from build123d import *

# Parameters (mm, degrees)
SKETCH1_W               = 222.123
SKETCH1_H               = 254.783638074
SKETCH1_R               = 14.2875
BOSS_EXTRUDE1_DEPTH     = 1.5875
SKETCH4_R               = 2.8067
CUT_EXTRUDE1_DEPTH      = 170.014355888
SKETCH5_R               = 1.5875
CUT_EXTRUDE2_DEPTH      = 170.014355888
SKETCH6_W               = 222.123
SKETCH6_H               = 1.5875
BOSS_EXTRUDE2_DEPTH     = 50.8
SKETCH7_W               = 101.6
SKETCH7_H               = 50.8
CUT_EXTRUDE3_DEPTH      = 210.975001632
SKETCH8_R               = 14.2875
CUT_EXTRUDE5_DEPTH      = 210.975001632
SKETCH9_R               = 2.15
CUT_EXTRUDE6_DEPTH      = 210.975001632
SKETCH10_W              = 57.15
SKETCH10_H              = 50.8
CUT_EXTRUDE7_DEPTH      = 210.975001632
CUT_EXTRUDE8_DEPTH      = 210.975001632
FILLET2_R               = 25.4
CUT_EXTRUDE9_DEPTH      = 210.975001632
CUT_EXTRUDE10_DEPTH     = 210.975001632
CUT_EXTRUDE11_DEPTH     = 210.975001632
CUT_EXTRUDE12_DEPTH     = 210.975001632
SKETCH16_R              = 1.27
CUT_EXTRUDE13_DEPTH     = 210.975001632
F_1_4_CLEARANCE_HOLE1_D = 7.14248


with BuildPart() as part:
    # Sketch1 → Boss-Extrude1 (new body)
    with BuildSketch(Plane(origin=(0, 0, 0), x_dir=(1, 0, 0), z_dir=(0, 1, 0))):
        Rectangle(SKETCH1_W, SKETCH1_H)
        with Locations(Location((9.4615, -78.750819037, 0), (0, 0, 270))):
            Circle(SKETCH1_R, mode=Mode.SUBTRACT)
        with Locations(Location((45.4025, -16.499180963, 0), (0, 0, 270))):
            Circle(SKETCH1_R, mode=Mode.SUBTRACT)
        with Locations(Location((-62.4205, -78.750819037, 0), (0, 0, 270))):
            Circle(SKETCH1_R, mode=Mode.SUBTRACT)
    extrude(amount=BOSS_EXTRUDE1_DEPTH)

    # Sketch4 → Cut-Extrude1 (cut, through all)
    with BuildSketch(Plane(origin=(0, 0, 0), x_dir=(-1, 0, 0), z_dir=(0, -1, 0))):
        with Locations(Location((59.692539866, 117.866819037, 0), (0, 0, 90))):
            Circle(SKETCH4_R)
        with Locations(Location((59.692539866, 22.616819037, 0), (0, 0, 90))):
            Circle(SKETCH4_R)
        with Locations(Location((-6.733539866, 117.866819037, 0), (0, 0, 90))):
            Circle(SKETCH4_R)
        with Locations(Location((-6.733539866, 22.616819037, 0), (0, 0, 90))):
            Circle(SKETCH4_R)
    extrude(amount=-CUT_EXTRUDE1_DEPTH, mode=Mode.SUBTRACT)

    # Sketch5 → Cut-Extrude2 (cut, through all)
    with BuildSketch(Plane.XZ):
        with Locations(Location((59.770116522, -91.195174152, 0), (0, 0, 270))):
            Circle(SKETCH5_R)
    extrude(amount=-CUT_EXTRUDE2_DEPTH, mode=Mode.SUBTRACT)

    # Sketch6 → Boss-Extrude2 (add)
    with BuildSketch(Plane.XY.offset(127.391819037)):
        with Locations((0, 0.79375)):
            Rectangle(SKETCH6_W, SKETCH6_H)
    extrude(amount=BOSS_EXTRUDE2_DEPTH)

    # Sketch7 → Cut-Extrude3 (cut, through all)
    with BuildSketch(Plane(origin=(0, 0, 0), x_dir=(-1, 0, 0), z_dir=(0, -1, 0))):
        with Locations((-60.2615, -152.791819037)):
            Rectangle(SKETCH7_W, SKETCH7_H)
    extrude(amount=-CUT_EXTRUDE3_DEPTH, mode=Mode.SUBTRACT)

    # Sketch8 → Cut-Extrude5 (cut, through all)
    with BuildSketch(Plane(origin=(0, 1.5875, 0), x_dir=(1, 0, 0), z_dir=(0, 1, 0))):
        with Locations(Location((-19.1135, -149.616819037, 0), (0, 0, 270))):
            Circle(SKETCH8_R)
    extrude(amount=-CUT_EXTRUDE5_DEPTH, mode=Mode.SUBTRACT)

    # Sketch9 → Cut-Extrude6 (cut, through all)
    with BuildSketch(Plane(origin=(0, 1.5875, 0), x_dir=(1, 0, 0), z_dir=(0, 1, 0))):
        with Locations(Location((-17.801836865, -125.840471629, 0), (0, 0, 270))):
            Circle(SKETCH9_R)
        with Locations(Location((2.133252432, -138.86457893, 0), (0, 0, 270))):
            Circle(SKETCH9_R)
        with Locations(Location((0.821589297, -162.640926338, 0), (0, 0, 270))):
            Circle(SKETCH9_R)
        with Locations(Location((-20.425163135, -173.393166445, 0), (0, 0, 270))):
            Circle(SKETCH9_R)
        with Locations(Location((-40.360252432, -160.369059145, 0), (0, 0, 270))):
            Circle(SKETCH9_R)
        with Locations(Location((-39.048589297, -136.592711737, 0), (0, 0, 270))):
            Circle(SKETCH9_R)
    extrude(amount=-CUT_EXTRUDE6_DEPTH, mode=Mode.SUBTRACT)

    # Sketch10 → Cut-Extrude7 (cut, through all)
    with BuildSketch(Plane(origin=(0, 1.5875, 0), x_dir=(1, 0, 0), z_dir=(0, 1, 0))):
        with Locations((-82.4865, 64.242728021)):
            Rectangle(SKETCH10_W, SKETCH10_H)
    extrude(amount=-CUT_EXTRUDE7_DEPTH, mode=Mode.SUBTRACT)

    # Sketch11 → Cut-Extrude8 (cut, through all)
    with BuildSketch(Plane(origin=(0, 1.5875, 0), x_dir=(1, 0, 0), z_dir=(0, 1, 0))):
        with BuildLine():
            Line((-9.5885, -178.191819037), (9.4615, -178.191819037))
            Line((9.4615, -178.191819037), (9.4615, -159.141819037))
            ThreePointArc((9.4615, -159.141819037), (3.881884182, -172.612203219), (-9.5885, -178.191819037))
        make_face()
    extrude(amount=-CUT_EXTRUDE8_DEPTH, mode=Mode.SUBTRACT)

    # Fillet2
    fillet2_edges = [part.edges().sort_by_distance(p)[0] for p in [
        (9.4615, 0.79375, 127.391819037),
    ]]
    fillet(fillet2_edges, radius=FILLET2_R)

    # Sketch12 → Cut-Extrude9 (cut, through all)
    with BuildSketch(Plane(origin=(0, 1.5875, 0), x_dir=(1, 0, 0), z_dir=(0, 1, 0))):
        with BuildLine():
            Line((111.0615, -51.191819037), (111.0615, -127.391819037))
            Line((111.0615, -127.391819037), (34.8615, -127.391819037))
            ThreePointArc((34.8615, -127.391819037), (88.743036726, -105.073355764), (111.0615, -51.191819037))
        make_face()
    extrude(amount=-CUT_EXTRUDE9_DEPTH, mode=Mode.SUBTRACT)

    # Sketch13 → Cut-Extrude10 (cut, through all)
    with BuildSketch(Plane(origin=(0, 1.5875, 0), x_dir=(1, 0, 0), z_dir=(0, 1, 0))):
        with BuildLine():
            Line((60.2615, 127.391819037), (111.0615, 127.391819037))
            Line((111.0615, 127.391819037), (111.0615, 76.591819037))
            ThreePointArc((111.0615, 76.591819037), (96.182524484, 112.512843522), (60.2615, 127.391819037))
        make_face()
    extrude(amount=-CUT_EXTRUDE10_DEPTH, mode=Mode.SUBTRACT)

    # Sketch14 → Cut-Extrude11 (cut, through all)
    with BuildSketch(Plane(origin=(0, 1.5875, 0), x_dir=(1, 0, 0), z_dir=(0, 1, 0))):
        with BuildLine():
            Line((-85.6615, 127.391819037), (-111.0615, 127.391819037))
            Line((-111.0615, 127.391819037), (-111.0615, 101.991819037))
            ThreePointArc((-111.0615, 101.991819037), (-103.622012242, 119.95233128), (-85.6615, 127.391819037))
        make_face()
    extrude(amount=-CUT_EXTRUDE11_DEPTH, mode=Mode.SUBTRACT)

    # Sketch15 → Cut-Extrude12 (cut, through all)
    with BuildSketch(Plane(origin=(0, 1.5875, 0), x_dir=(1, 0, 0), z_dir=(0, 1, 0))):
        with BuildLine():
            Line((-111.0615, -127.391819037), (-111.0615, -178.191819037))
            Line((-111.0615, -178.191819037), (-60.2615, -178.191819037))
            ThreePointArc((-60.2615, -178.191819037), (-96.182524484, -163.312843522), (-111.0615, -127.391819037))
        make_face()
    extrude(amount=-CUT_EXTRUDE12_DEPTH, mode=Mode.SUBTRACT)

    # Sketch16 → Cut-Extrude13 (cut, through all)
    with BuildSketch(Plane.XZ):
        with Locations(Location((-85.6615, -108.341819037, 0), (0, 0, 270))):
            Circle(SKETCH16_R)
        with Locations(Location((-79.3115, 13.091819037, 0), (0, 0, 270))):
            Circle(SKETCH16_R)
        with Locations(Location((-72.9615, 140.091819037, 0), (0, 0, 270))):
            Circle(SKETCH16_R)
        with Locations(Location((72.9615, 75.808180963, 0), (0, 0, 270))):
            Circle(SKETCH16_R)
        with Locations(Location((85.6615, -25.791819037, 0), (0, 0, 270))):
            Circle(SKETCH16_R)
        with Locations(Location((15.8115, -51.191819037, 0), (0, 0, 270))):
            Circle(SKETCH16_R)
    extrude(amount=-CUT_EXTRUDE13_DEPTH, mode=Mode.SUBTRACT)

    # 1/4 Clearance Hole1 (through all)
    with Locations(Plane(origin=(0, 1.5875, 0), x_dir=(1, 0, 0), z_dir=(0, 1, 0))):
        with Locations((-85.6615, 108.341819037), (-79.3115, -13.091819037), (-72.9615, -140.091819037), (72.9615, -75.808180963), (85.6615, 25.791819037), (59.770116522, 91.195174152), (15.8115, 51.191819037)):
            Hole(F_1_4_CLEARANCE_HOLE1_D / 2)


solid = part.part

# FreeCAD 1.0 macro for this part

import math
import FreeCAD as App
import Part
import Sketcher
from FreeCAD import Vector
Q = App.Units.Quantity


def edges_at(feature, points):
    """Names of the edges that pass closest to the given points."""
    edges = feature.Shape.Edges
    near = lambda p: min(range(len(edges)), key=lambda i: edges[i].distToShape(Part.Vertex(*p))[0])
    return sorted({f"Edge{near(p) + 1}" for p in points})

doc = App.newDocument("Part")
body = doc.addObject("PartDesign::Body", "Body")

# Sketch on XZ plane
sketch1 = doc.addObject("Sketcher::SketchObject", "Sketch")
body.addObject(sketch1)
sketch1.AttachmentSupport = (doc.XZ_Plane, [""])
sketch1.MapMode = "FlatFace"
sketch1.addGeometry([
    Part.LineSegment(Vector(-111, -127, 0), Vector(-111, 127, 0)),  # 0
    Part.LineSegment(Vector(-111, 127, 0), Vector(111, 127, 0)),  # 1
    Part.LineSegment(Vector(111, 127, 0), Vector(111, -127, 0)),  # 2
    Part.LineSegment(Vector(111, -127, 0), Vector(-111, -127, 0)),  # 3
    Part.Circle(Vector(-62, 79, 0), Vector(0, 0, 1), 14),  # 4
    Part.Circle(Vector(9, 79, 0), Vector(0, 0, 1), 14),  # 5
    Part.Circle(Vector(45, 16, 0), Vector(0, 0, 1), 14),  # 6
], False)
sketch1.addConstraint([
    Sketcher.Constraint("Coincident", 0, 2, 1, 1),
    Sketcher.Constraint("Coincident", 1, 2, 2, 1),
    Sketcher.Constraint("Coincident", 2, 2, 3, 1),
    Sketcher.Constraint("Coincident", 3, 2, 0, 1),
    Sketcher.Constraint("Vertical", 0),
    Sketcher.Constraint("Horizontal", 1),
    Sketcher.Constraint("Vertical", 2),
    Sketcher.Constraint("Horizontal", 3),
    Sketcher.Constraint("Equal", 4, 5),
    Sketcher.Constraint("Equal", 5, 6),
    Sketcher.Constraint("Symmetric", 0, 2, 2, 2, -1, 1),
    Sketcher.Constraint("Horizontal", 4, 3, 5, 3),
    Sketcher.Constraint("Diameter", 4, Q("1.125 in")),
    Sketcher.Constraint("DistanceX", 5, 3, 1, 2, Q("4 in")),
    Sketcher.Constraint("DistanceX", 1, 1, 1, 2, Q("8.745 in")),
    Sketcher.Constraint("DistanceX", 4, 3, 5, 3, Q("2.83 in")),
    Sketcher.Constraint("DistanceX", 0, 2, 6, 3, Q("6.16 in")),
    Sketcher.Constraint("DistanceY", 4, 3, 0, 2, Q("1.915 in")),
    Sketcher.Constraint("DistanceY", 2, 2, 6, 3, Q("5.665 in")),
    Sketcher.Constraint("DistanceY", 0, 1, 0, 2, 254.783638),
])
pad1 = doc.addObject("PartDesign::Pad", "Pad")
body.addObject(pad1)
pad1.Profile = sketch1
pad1.Length = Q("0.0625 in")
pad1.Reversed = True

# Sketch on XZ plane
sketch2 = doc.addObject("Sketcher::SketchObject", "Sketch001")
body.addObject(sketch2)
sketch2.AttachmentSupport = (doc.XZ_Plane, [""])
sketch2.MapMode = "FlatFace"
sketch2.addGeometry([
    Part.Circle(Vector(-59.7, -117.9, 0), Vector(0, 0, 1), 2.8),
    Part.Circle(Vector(-59.7, -22.6, 0), Vector(0, 0, 1), 2.8),
    Part.Circle(Vector(6.7, -117.9, 0), Vector(0, 0, 1), 2.8),
    Part.Circle(Vector(6.7, -22.6, 0), Vector(0, 0, 1), 2.8),
], False)
sketch2.addConstraint([
    Sketcher.Constraint("Equal", 0, 1),
    Sketcher.Constraint("Equal", 1, 2),
    Sketcher.Constraint("Equal", 2, 3),
    Sketcher.Constraint("Horizontal", 0, 3, 2, 3),
    Sketcher.Constraint("Horizontal", 1, 3, 3, 3),
    Sketcher.Constraint("Vertical", 0, 3, 1, 3),
    Sketcher.Constraint("Vertical", 2, 3, 3, 3),
    Sketcher.Constraint("Diameter", 0, Q("0.221 in")),
    Sketcher.Constraint("DistanceY", 0, 3, 1, 3, Q("3.75 in")),
    Sketcher.Constraint("DistanceX", 0, 3, -1, 1, Q("2.3501 in")),
    Sketcher.Constraint("DistanceX", -1, 1, 2, 3, Q("0.2651 in")),
    Sketcher.Constraint("DistanceY", 0, 3, -1, 1, 117.866819),
])
pocket1 = doc.addObject("PartDesign::Pocket", "Pocket")
body.addObject(pocket1)
pocket1.Profile = sketch2
pocket1.Type = "ThroughAll"

# Sketch on XZ plane
sketch3 = doc.addObject("Sketcher::SketchObject", "Sketch002")
body.addObject(sketch3)
sketch3.AttachmentSupport = (doc.XZ_Plane, [""])
sketch3.MapMode = "FlatFace"
sketch3.addGeometry(Part.Circle(Vector(59.8, -91.2, 0), Vector(0, 0, 1), 1.6), False)
sketch3.addConstraint([
    Sketcher.Constraint("Diameter", 0, Q("0.125 in")),
    Sketcher.Constraint("DistanceX", -1, 1, 0, 3, 59.770117),
    Sketcher.Constraint("DistanceY", 0, 3, -1, 1, 91.195174),
])
pocket2 = doc.addObject("PartDesign::Pocket", "Pocket001")
body.addObject(pocket2)
pocket2.Profile = sketch3
pocket2.Type = "ThroughAll"

# Sketch on XY plane
sketch4 = doc.addObject("Sketcher::SketchObject", "Sketch003")
body.addObject(sketch4)
sketch4.AttachmentSupport = (doc.XY_Plane, [""])
sketch4.MapMode = "FlatFace"
sketch4.AttachmentOffset = App.Placement(Vector(0, 0, 127.391819), App.Rotation())
sketch4.addGeometry([
    Part.LineSegment(Vector(-111.1, 1.6, 0), Vector(-111.1, 0, 0)),
    Part.LineSegment(Vector(-111.1, 0, 0), Vector(111.1, 0, 0)),
    Part.LineSegment(Vector(111.1, 0, 0), Vector(111.1, 1.6, 0)),
    Part.LineSegment(Vector(111.1, 1.6, 0), Vector(-111.1, 1.6, 0)),
], False)
sketch4.addConstraint([
    Sketcher.Constraint("Coincident", 0, 2, 1, 1),
    Sketcher.Constraint("Coincident", 1, 2, 2, 1),
    Sketcher.Constraint("Coincident", 2, 2, 3, 1),
    Sketcher.Constraint("Coincident", 3, 2, 0, 1),
    Sketcher.Constraint("Vertical", 0),
    Sketcher.Constraint("Horizontal", 1),
    Sketcher.Constraint("Vertical", 2),
    Sketcher.Constraint("Horizontal", 3),
    Sketcher.Constraint("Symmetric", 0, 2, 1, 2, -1, 1),
    Sketcher.Constraint("DistanceX", 1, 1, 1, 2, Q("8.745 in")),
    Sketcher.Constraint("DistanceY", 0, 2, 0, 1, Q("0.0625 in")),
])
pad2 = doc.addObject("PartDesign::Pad", "Pad001")
body.addObject(pad2)
pad2.Profile = sketch4
pad2.Length = Q("2 in")

# Sketch on XZ plane
sketch5 = doc.addObject("Sketcher::SketchObject", "Sketch004")
body.addObject(sketch5)
sketch5.AttachmentSupport = (doc.XZ_Plane, [""])
sketch5.MapMode = "FlatFace"
sketch5.addGeometry([
    Part.LineSegment(Vector(111, 127, 0), Vector(111, 178, 0)),
    Part.LineSegment(Vector(111, 178, 0), Vector(9, 178, 0)),
    Part.LineSegment(Vector(9, 178, 0), Vector(9, 127, 0)),
    Part.LineSegment(Vector(9, 127, 0), Vector(111, 127, 0)),
], False)
sketch5.addConstraint([
    Sketcher.Constraint("Coincident", 0, 2, 1, 1),
    Sketcher.Constraint("Coincident", 1, 2, 2, 1),
    Sketcher.Constraint("Coincident", 2, 2, 3, 1),
    Sketcher.Constraint("Coincident", 3, 2, 0, 1),
    Sketcher.Constraint("Vertical", 0),
    Sketcher.Constraint("Horizontal", 1),
    Sketcher.Constraint("Vertical", 2),
    Sketcher.Constraint("Horizontal", 3),
    Sketcher.Constraint("DistanceX", 1, 2, 1, 1, Q("4 in")),
    Sketcher.Constraint("DistanceY", 0, 1, 0, 2, Q("2 in")),
    Sketcher.Constraint("DistanceX", -1, 1, 0, 2, Q("4.3725 in")),
    Sketcher.Constraint("DistanceY", -1, 1, 0, 2, 178.191819),
])
pocket3 = doc.addObject("PartDesign::Pocket", "Pocket002")
body.addObject(pocket3)
pocket3.Profile = sketch5
pocket3.Type = "ThroughAll"

# Sketch on XZ plane
sketch6 = doc.addObject("Sketcher::SketchObject", "Sketch005")
body.addObject(sketch6)
sketch6.AttachmentSupport = (doc.XZ_Plane, [""])
sketch6.MapMode = "FlatFace"
sketch6.AttachmentOffset = App.Placement(Vector(0, 0, -0.0625 * 25.4), App.Rotation())
sketch6.addGeometry(Part.Circle(Vector(-19, 150, 0), Vector(0, 0, 1), 14), False)
sketch6.addConstraint([
    Sketcher.Constraint("Diameter", 0, Q("1.125 in")),
    Sketcher.Constraint("DistanceX", 0, 3, -1, 1, Q("0.7525 in")),
    Sketcher.Constraint("DistanceY", -1, 1, 0, 3, 149.616819),
])
pocket4 = doc.addObject("PartDesign::Pocket", "Pocket003")
body.addObject(pocket4)
pocket4.Profile = sketch6
pocket4.Type = "ThroughAll"
pocket4.Reversed = True

# Sketch on XZ plane
sketch7 = doc.addObject("Sketcher::SketchObject", "Sketch006")
body.addObject(sketch7)
sketch7.AttachmentSupport = (doc.XZ_Plane, [""])
sketch7.MapMode = "FlatFace"
sketch7.AttachmentOffset = App.Placement(Vector(0, 0, -0.0625 * 25.4), App.Rotation())
sketch7.addGeometry([
    Part.Circle(Vector(-17.8, 125.8, 0), Vector(0, 0, 1), 2.1),  # 0
    Part.Circle(Vector(2.1, 138.9, 0), Vector(0, 0, 1), 2.1),  # 1
    Part.Circle(Vector(0.8, 162.6, 0), Vector(0, 0, 1), 2.1),  # 2
    Part.Circle(Vector(-20.4, 173.4, 0), Vector(0, 0, 1), 2.1),  # 3
    Part.Circle(Vector(-40.4, 160.4, 0), Vector(0, 0, 1), 2.1),  # 4
    Part.Circle(Vector(-39, 136.6, 0), Vector(0, 0, 1), 2.1),  # 5
], False)
sketch7.addConstraint([
    Sketcher.Constraint("Equal", 0, 1),
    Sketcher.Constraint("Equal", 1, 2),
    Sketcher.Constraint("Equal", 2, 3),
    Sketcher.Constraint("Equal", 3, 4),
    Sketcher.Constraint("Equal", 4, 5),
    Sketcher.Constraint("Diameter", 0, 4.3),
    Sketcher.Constraint("DistanceY", -1, 1, 0, 3, 125.840472),
    Sketcher.Constraint("DistanceY", -1, 1, 1, 3, 138.864579),
    Sketcher.Constraint("DistanceX", -1, 1, 2, 3, 0.821589),
    Sketcher.Constraint("DistanceY", -1, 1, 4, 3, 160.369059),
    Sketcher.Constraint("DistanceX", 5, 3, -1, 1, 39.048589),
    Sketcher.Constraint("DistanceY", -1, 1, 5, 3, 136.592712),
    Sketcher.Constraint("DistanceX", 0, 3, 1, 3, 19.935089),
    Sketcher.Constraint("DistanceY", 2, 3, 3, 3, 10.75224),
    Sketcher.Constraint("DistanceX", 4, 3, 3, 3, 19.935089),
    Sketcher.Constraint("DistanceX", 4, 3, 2, 3, 41.181842),
    Sketcher.Constraint("DistanceX", 5, 3, 1, 3, 41.181842),
    Sketcher.Constraint("DistanceY", -1, 1, 2, 3, 162.640926),
])
pocket5 = doc.addObject("PartDesign::Pocket", "Pocket004")
body.addObject(pocket5)
pocket5.Profile = sketch7
pocket5.Type = "ThroughAll"
pocket5.Reversed = True

# Sketch on XZ plane
sketch8 = doc.addObject("Sketcher::SketchObject", "Sketch007")
body.addObject(sketch8)
sketch8.AttachmentSupport = (doc.XZ_Plane, [""])
sketch8.MapMode = "FlatFace"
sketch8.AttachmentOffset = App.Placement(Vector(0, 0, -0.0625 * 25.4), App.Rotation())
sketch8.addGeometry([
    Part.LineSegment(Vector(-111, -90, 0), Vector(-111, -39, 0)),
    Part.LineSegment(Vector(-111, -39, 0), Vector(-54, -39, 0)),
    Part.LineSegment(Vector(-54, -39, 0), Vector(-54, -90, 0)),
    Part.LineSegment(Vector(-54, -90, 0), Vector(-111, -90, 0)),
], False)
sketch8.addConstraint([
    Sketcher.Constraint("Coincident", 0, 2, 1, 1),
    Sketcher.Constraint("Coincident", 1, 2, 2, 1),
    Sketcher.Constraint("Coincident", 2, 2, 3, 1),
    Sketcher.Constraint("Coincident", 3, 2, 0, 1),
    Sketcher.Constraint("Vertical", 0),
    Sketcher.Constraint("Horizontal", 1),
    Sketcher.Constraint("Vertical", 2),
    Sketcher.Constraint("Horizontal", 3),
    Sketcher.Constraint("DistanceY", 0, 1, 0, 2, Q("2 in")),
    Sketcher.Constraint("DistanceX", 1, 1, 1, 2, Q("2.25 in")),
    Sketcher.Constraint("DistanceX", 0, 2, -1, 1, Q("4.3725 in")),
    Sketcher.Constraint("DistanceY", 0, 2, -1, 1, 38.842728),
])
pocket6 = doc.addObject("PartDesign::Pocket", "Pocket005")
body.addObject(pocket6)
pocket6.Profile = sketch8
pocket6.Type = "ThroughAll"
pocket6.Reversed = True

# Sketch on XZ plane
sketch9 = doc.addObject("Sketcher::SketchObject", "Sketch008")
body.addObject(sketch9)
sketch9.AttachmentSupport = (doc.XZ_Plane, [""])
sketch9.MapMode = "FlatFace"
sketch9.AttachmentOffset = App.Placement(Vector(0, 0, -0.0625 * 25.4), App.Rotation())
sketch9.addGeometry([
    Part.LineSegment(Vector(-10, 178, 0), Vector(9, 178, 0)),
    Part.LineSegment(Vector(9, 178, 0), Vector(9, 159, 0)),
    Part.ArcOfCircle(Part.Circle(Vector(-10, 159, 0), Vector(0, 0, 1), 19), math.radians(0), math.radians(90)),
], False)
sketch9.addConstraint([
    Sketcher.Constraint("Coincident", 0, 2, 1, 1),
    Sketcher.Constraint("Tangent", 1, 2, 2, 1),
    Sketcher.Constraint("Tangent", 2, 2, 0, 1),
    Sketcher.Constraint("Horizontal", 0),
    Sketcher.Constraint("Vertical", 1),
    Sketcher.Constraint("Radius", 2, Q("0.75 in")),
    Sketcher.Constraint("DistanceX", 2, 3, -1, 1, Q("0.3775 in")),
    Sketcher.Constraint("DistanceY", -1, 1, 2, 3, 159.141819),
])
pocket7 = doc.addObject("PartDesign::Pocket", "Pocket006")
body.addObject(pocket7)
pocket7.Profile = sketch9
pocket7.Type = "ThroughAll"
pocket7.Reversed = True
doc.recompute()

fillet = doc.addObject("PartDesign::Fillet", "Fillet")
body.addObject(fillet)
fillet.Base = (pocket7, edges_at(pocket7, [(9.461, 0.794, 127.392)]))
fillet.Radius = Q("1 in")

# Sketch on XZ plane
sketch10 = doc.addObject("Sketcher::SketchObject", "Sketch009")
body.addObject(sketch10)
sketch10.AttachmentSupport = (doc.XZ_Plane, [""])
sketch10.MapMode = "FlatFace"
sketch10.AttachmentOffset = App.Placement(Vector(0, 0, -0.0625 * 25.4), App.Rotation())
sketch10.addGeometry([
    Part.LineSegment(Vector(111, 127, 0), Vector(111, 51, 0)),
    Part.ArcOfCircle(Part.Circle(Vector(35, 51, 0), Vector(0, 0, 1), 76), math.radians(0), math.radians(90)),
    Part.LineSegment(Vector(35, 127, 0), Vector(111, 127, 0)),
], False)
sketch10.addConstraint([
    Sketcher.Constraint("Tangent", 0, 2, 1, 1),
    Sketcher.Constraint("Tangent", 1, 2, 2, 1),
    Sketcher.Constraint("Coincident", 2, 2, 0, 1),
    Sketcher.Constraint("Vertical", 0),
    Sketcher.Constraint("Horizontal", 2),
    Sketcher.Constraint("Radius", 1, Q("3 in")),
    Sketcher.Constraint("DistanceX", -1, 1, 1, 3, Q("1.3725 in")),
    Sketcher.Constraint("DistanceY", -1, 1, 1, 3, 51.191819),
])
pocket8 = doc.addObject("PartDesign::Pocket", "Pocket007")
body.addObject(pocket8)
pocket8.Profile = sketch10
pocket8.Type = "ThroughAll"
pocket8.Reversed = True

# Sketch on XZ plane
sketch11 = doc.addObject("Sketcher::SketchObject", "Sketch010")
body.addObject(sketch11)
sketch11.AttachmentSupport = (doc.XZ_Plane, [""])
sketch11.MapMode = "FlatFace"
sketch11.AttachmentOffset = App.Placement(Vector(0, 0, -0.0625 * 25.4), App.Rotation())
sketch11.addGeometry([
    Part.LineSegment(Vector(111, -127, 0), Vector(60, -127, 0)),
    Part.ArcOfCircle(Part.Circle(Vector(60, -77, 0), Vector(0, 0, 1), 51), math.radians(-90), math.radians(0)),
    Part.LineSegment(Vector(111, -77, 0), Vector(111, -127, 0)),
], False)
sketch11.addConstraint([
    Sketcher.Constraint("Tangent", 0, 2, 1, 1),
    Sketcher.Constraint("Tangent", 1, 2, 2, 1),
    Sketcher.Constraint("Coincident", 2, 2, 0, 1),
    Sketcher.Constraint("Horizontal", 0),
    Sketcher.Constraint("Vertical", 2),
    Sketcher.Constraint("Radius", 1, Q("2 in")),
    Sketcher.Constraint("DistanceX", -1, 1, 1, 3, Q("2.3725 in")),
    Sketcher.Constraint("DistanceY", 1, 3, -1, 1, 76.591819),
])
pocket9 = doc.addObject("PartDesign::Pocket", "Pocket008")
body.addObject(pocket9)
pocket9.Profile = sketch11
pocket9.Type = "ThroughAll"
pocket9.Reversed = True

# Sketch on XZ plane
sketch12 = doc.addObject("Sketcher::SketchObject", "Sketch011")
body.addObject(sketch12)
sketch12.AttachmentSupport = (doc.XZ_Plane, [""])
sketch12.MapMode = "FlatFace"
sketch12.AttachmentOffset = App.Placement(Vector(0, 0, -0.0625 * 25.4), App.Rotation())
sketch12.addGeometry([
    Part.LineSegment(Vector(-86, -127, 0), Vector(-111, -127, 0)),
    Part.LineSegment(Vector(-111, -127, 0), Vector(-111, -102, 0)),
    Part.ArcOfCircle(Part.Circle(Vector(-86, -102, 0), Vector(0, 0, 1), 25), math.radians(180), math.radians(270)),
], False)
sketch12.addConstraint([
    Sketcher.Constraint("Coincident", 0, 2, 1, 1),
    Sketcher.Constraint("Tangent", 1, 2, 2, 1),
    Sketcher.Constraint("Tangent", 2, 2, 0, 1),
    Sketcher.Constraint("Horizontal", 0),
    Sketcher.Constraint("Vertical", 1),
    Sketcher.Constraint("Radius", 2, Q("1 in")),
    Sketcher.Constraint("DistanceX", 2, 3, -1, 1, Q("3.3725 in")),
    Sketcher.Constraint("DistanceY", 2, 3, -1, 1, 101.991819),
])
pocket10 = doc.addObject("PartDesign::Pocket", "Pocket009")
body.addObject(pocket10)
pocket10.Profile = sketch12
pocket10.Type = "ThroughAll"
pocket10.Reversed = True

# Sketch on XZ plane
sketch13 = doc.addObject("Sketcher::SketchObject", "Sketch012")
body.addObject(sketch13)
sketch13.AttachmentSupport = (doc.XZ_Plane, [""])
sketch13.MapMode = "FlatFace"
sketch13.AttachmentOffset = App.Placement(Vector(0, 0, -0.0625 * 25.4), App.Rotation())
sketch13.addGeometry([
    Part.LineSegment(Vector(-111, 127, 0), Vector(-111, 178, 0)),
    Part.LineSegment(Vector(-111, 178, 0), Vector(-60, 178, 0)),
    Part.ArcOfCircle(Part.Circle(Vector(-60, 127, 0), Vector(0, 0, 1), 51), math.radians(90), math.radians(180)),
], False)
sketch13.addConstraint([
    Sketcher.Constraint("Coincident", 0, 2, 1, 1),
    Sketcher.Constraint("Tangent", 1, 2, 2, 1),
    Sketcher.Constraint("Tangent", 2, 2, 0, 1),
    Sketcher.Constraint("Vertical", 0),
    Sketcher.Constraint("Horizontal", 1),
    Sketcher.Constraint("Radius", 2, Q("2 in")),
    Sketcher.Constraint("DistanceX", 2, 3, -1, 1, Q("2.3725 in")),
    Sketcher.Constraint("DistanceY", -1, 1, 2, 3, 127.391819),
])
pocket11 = doc.addObject("PartDesign::Pocket", "Pocket010")
body.addObject(pocket11)
pocket11.Profile = sketch13
pocket11.Type = "ThroughAll"
pocket11.Reversed = True

# Sketch on XZ plane
sketch14 = doc.addObject("Sketcher::SketchObject", "Sketch013")
body.addObject(sketch14)
sketch14.AttachmentSupport = (doc.XZ_Plane, [""])
sketch14.MapMode = "FlatFace"
sketch14.addGeometry([
    Part.Circle(Vector(-85.7, -108.3, 0), Vector(0, 0, 1), 1.3),  # 0
    Part.Circle(Vector(-79.3, 13.1, 0), Vector(0, 0, 1), 1.3),  # 1
    Part.Circle(Vector(-73, 140.1, 0), Vector(0, 0, 1), 1.3),  # 2
    Part.Circle(Vector(73, 75.8, 0), Vector(0, 0, 1), 1.3),  # 3
    Part.Circle(Vector(85.7, -25.8, 0), Vector(0, 0, 1), 1.3),  # 4
    Part.Circle(Vector(15.8, -51.2, 0), Vector(0, 0, 1), 1.3),  # 5
], False)
sketch14.addConstraint([
    Sketcher.Constraint("Equal", 0, 1),
    Sketcher.Constraint("Equal", 1, 2),
    Sketcher.Constraint("Equal", 2, 3),
    Sketcher.Constraint("Equal", 3, 4),
    Sketcher.Constraint("Equal", 4, 5),
    Sketcher.Constraint("Diameter", 0, Q("0.1 in")),
    Sketcher.Constraint("DistanceY", 1, 3, 2, 3, Q("5 in")),
    Sketcher.Constraint("DistanceY", 4, 3, 3, 3, Q("4 in")),
    Sketcher.Constraint("DistanceY", 5, 3, 4, 3, Q("1 in")),
    Sketcher.Constraint("DistanceX", 0, 3, 2, 3, Q("0.5 in")),
    Sketcher.Constraint("DistanceX", 3, 3, 4, 3, Q("0.5 in")),
    Sketcher.Constraint("DistanceX", 0, 3, 1, 3, Q("0.25 in")),
    Sketcher.Constraint("DistanceY", 0, 3, 3, 3, Q("7.25 in")),
    Sketcher.Constraint("DistanceX", 5, 3, 4, 3, Q("2.75 in")),
    Sketcher.Constraint("DistanceX", 2, 3, 3, 3, Q("5.745 in")),
    Sketcher.Constraint("DistanceX", 0, 3, -1, 1, Q("3.3725 in")),
    Sketcher.Constraint("DistanceY", 0, 3, -1, 1, 108.341819),
    Sketcher.Constraint("DistanceY", -1, 1, 1, 3, 13.091819),
])
pocket12 = doc.addObject("PartDesign::Pocket", "Pocket011")
body.addObject(pocket12)
pocket12.Profile = sketch14
pocket12.Type = "ThroughAll"

# Sketch on XZ plane
sketch15 = doc.addObject("Sketcher::SketchObject", "Sketch014")
body.addObject(sketch15)
sketch15.AttachmentSupport = (doc.XZ_Plane, [""])
sketch15.MapMode = "FlatFace"
sketch15.AttachmentOffset = App.Placement(Vector(0, 0, -0.0625 * 25.4), App.Rotation())
sketch15.addGeometry([
    Part.Circle(Vector(-85.7, -108.3, 0), Vector(0, 0, 1), 3.6),  # 0
    Part.Circle(Vector(-79.3, 13.1, 0), Vector(0, 0, 1), 3.6),  # 1
    Part.Circle(Vector(-73, 140.1, 0), Vector(0, 0, 1), 3.6),  # 2
    Part.Circle(Vector(73, 75.8, 0), Vector(0, 0, 1), 3.6),  # 3
    Part.Circle(Vector(85.7, -25.8, 0), Vector(0, 0, 1), 3.6),  # 4
    Part.Circle(Vector(59.8, -91.2, 0), Vector(0, 0, 1), 3.6),  # 5
    Part.Circle(Vector(15.8, -51.2, 0), Vector(0, 0, 1), 3.6),  # 6
], False)
sketch15.addConstraint([
    Sketcher.Constraint("Equal", 0, 1),
    Sketcher.Constraint("Equal", 1, 2),
    Sketcher.Constraint("Equal", 2, 3),
    Sketcher.Constraint("Equal", 3, 4),
    Sketcher.Constraint("Equal", 4, 5),
    Sketcher.Constraint("Equal", 5, 6),
    Sketcher.Constraint("DistanceY", 1, 3, 2, 3, Q("5 in")),
    Sketcher.Constraint("DistanceY", 4, 3, 3, 3, Q("4 in")),
    Sketcher.Constraint("DistanceY", 6, 3, 4, 3, Q("1 in")),
    Sketcher.Constraint("Diameter", 0, Q("0.2812 in")),
    Sketcher.Constraint("DistanceX", 0, 3, 2, 3, Q("0.5 in")),
    Sketcher.Constraint("DistanceX", 3, 3, 4, 3, Q("0.5 in")),
    Sketcher.Constraint("DistanceX", 0, 3, 1, 3, Q("0.25 in")),
    Sketcher.Constraint("DistanceY", 0, 3, 3, 3, Q("7.25 in")),
    Sketcher.Constraint("DistanceX", 6, 3, 4, 3, Q("2.75 in")),
    Sketcher.Constraint("DistanceX", 2, 3, 3, 3, Q("5.745 in")),
    Sketcher.Constraint("DistanceX", 0, 3, -1, 1, Q("3.3725 in")),
    Sketcher.Constraint("DistanceY", 0, 3, -1, 1, 108.341819),
    Sketcher.Constraint("DistanceY", -1, 1, 1, 3, 13.091819),
    Sketcher.Constraint("DistanceX", -1, 1, 5, 3, 59.770117),
    Sketcher.Constraint("DistanceY", 5, 3, -1, 1, 91.195174),
])
doc.recompute()
hole = doc.addObject("PartDesign::Hole", "Hole")
body.addObject(hole)
hole.Profile = sketch15
hole.ThreadType = "None"
hole.Diameter = Q("0.2812 in")
hole.DepthType = "ThroughAll"
hole.Reversed = True

doc.recompute()
